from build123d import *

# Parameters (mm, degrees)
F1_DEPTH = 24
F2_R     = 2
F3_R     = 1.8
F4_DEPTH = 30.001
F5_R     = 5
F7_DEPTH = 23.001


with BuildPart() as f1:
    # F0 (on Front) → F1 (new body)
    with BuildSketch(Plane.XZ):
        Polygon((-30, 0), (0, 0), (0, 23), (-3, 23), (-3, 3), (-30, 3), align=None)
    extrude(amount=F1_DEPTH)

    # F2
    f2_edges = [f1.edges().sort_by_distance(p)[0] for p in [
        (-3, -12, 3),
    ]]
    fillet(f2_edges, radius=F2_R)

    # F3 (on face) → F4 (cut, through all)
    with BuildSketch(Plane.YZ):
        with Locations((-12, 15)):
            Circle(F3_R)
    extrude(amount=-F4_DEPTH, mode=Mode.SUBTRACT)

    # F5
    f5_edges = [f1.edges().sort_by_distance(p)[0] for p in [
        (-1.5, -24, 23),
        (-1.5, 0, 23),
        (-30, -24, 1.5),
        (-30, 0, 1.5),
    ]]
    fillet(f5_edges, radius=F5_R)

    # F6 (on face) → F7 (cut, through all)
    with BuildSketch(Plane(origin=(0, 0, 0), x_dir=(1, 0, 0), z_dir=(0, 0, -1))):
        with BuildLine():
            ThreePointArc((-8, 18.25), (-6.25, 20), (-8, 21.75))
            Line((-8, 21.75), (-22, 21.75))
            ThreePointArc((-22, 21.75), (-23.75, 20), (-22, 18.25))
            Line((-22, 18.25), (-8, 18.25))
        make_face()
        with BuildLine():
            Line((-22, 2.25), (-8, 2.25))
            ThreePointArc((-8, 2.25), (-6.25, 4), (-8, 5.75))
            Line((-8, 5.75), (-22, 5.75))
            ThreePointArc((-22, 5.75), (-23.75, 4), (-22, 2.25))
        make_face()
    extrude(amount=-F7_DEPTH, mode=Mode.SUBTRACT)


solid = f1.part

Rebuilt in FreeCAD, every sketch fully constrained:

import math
import FreeCAD as App
import Part
import Sketcher

V = App.Vector
Q = App.Units.Quantity


def edges_at(feature, points):
    """Names of the edges that pass closest to the given points."""
    edges = feature.Shape.Edges
    near = lambda p: min(range(len(edges)), key=lambda i: edges[i].distToShape(Part.Vertex(*p))[0])
    return sorted({f"Edge{near(p) + 1}" for p in points})


def add_polygon(sketch, points):
    """Adds a closed chain of lines whose ends are joined by coincident constraints."""
    first, n = sketch.GeometryCount, len(points)
    for a, b in zip(points, points[1:] + points[:1]):
        sketch.addGeometry(Part.LineSegment(App.Vector(*a, 0), App.Vector(*b, 0)), False)
    for i in range(n):
        sketch.addConstraint(Sketcher.Constraint("Coincident", first + i, 2, first + (i + 1) % n, 1))

doc = App.newDocument("Part")
body = doc.addObject("PartDesign::Body", "Body")

# Sketch on XZ plane
sketch1 = body.newObject("Sketcher::SketchObject", "Sketch")
sketch1.AttachmentSupport = (doc.getObject("XZ_Plane"), [""])
sketch1.MapMode = "FlatFace"
add_polygon(sketch1, [(-30, 0), (0, 0), (0, 23), (-3, 23), (-3, 3), (-30, 3)])  # lines 0-5
sketch1.addConstraint([
    Sketcher.Constraint("Horizontal", 0),
    Sketcher.Constraint("Vertical", 1),
    Sketcher.Constraint("Horizontal", 2),
    Sketcher.Constraint("Vertical", 3),
    Sketcher.Constraint("Horizontal", 4),
    Sketcher.Constraint("Vertical", 5),
    Sketcher.Constraint("Coincident", 0, 2, -1, 1),
    Sketcher.Constraint("Equal", 2, 5),
    Sketcher.Constraint("DistanceX", 0, 1, 0, 2, Q("30 mm")),
    Sketcher.Constraint("DistanceX", 2, 2, 2, 1, Q("3 mm")),
    Sketcher.Constraint("DistanceY", 1, 1, 1, 2, Q("23 mm")),
])
pad1 = body.newObject("PartDesign::Pad", "Pad")
pad1.Profile = sketch1
pad1.Length = 24
doc.recompute()

fillet = body.newObject("PartDesign::Fillet", "Fillet")
fillet.Base = (pad1, edges_at(pad1, [(-3, -12, 3)]))
fillet.Radius = 2

# Sketch on YZ plane
sketch2 = body.newObject("Sketcher::SketchObject", "Sketch001")
sketch2.AttachmentSupport = (doc.getObject("YZ_Plane"), [""])
sketch2.MapMode = "FlatFace"
sketch2.addGeometry(Part.Circle(V(-12, 15, 0), V(0, 0, 1), 1.8), False)
sketch2.addConstraint([
    Sketcher.Constraint("Diameter", 0, Q("3.6 mm")),
    Sketcher.Constraint("DistanceX", 0, 3, -1, 1, Q("12 mm")),
    Sketcher.Constraint("DistanceY", -1, 1, 0, 3, Q("15 mm")),
])
pocket1 = body.newObject("PartDesign::Pocket", "Pocket")
pocket1.Profile = sketch2
pocket1.Type = "ThroughAll"
doc.recompute()

fillet2 = body.newObject("PartDesign::Fillet", "Fillet001")
fillet2.Base = (pocket1, edges_at(pocket1, [
    (-1.5, -24, 23),
    (-1.5, 0, 23),
    (-30, -24, 1.5),
    (-30, 0, 1.5),
]))
fillet2.Radius = 5

# Sketch on XY plane
sketch3 = body.newObject("Sketcher::SketchObject", "Sketch002")
sketch3.AttachmentSupport = (doc.getObject("XY_Plane"), [""])
sketch3.MapMode = "FlatFace"
sketch3.addGeometry([
    Part.ArcOfCircle(Part.Circle(V(-8, -20, 0), V(0, 0, 1), 1.75), math.radians(-90), math.radians(90)),  # 0
    Part.LineSegment(V(-8, -21.75, 0), V(-22, -21.75, 0)),  # 1
    Part.ArcOfCircle(Part.Circle(V(-22, -20, 0), V(0, 0, 1), 1.75), math.radians(90), math.radians(270)),  # 2
    Part.LineSegment(V(-22, -18.25, 0), V(-8, -18.25, 0)),  # 3
    Part.LineSegment(V(-22, -2.25, 0), V(-8, -2.25, 0)),  # 4
    Part.ArcOfCircle(Part.Circle(V(-8, -4, 0), V(0, 0, 1), 1.75), math.radians(-90), math.radians(90)),  # 5
    Part.LineSegment(V(-8, -5.75, 0), V(-22, -5.75, 0)),  # 6
    Part.ArcOfCircle(Part.Circle(V(-22, -4, 0), V(0, 0, 1), 1.75), math.radians(90), math.radians(270)),  # 7
], False)
sketch3.addConstraint([
    Sketcher.Constraint("Tangent", 0, 1, 1, 1),
    Sketcher.Constraint("Tangent", 1, 2, 2, 2),
    Sketcher.Constraint("Tangent", 2, 1, 3, 1),
    Sketcher.Constraint("Tangent", 3, 2, 0, 2),
    Sketcher.Constraint("Tangent", 4, 2, 5, 2),
    Sketcher.Constraint("Tangent", 5, 1, 6, 1),
    Sketcher.Constraint("Tangent", 6, 2, 7, 2),
    Sketcher.Constraint("Tangent", 7, 1, 4, 1),
    Sketcher.Constraint("Horizontal", 1),
    Sketcher.Constraint("Horizontal", 3),
    Sketcher.Constraint("Horizontal", 4),
    Sketcher.Constraint("Horizontal", 6),
    Sketcher.Constraint("Equal", 2, 5),
    Sketcher.Constraint("Vertical", 0, 3, 5, 3),
    Sketcher.Constraint("Vertical", 2, 3, 7, 3),
    Sketcher.Constraint("DistanceX", 1, 2, 1, 1, Q("14 mm")),
    Sketcher.Constraint("Radius", 0, Q("1.75 mm")),
    Sketcher.Constraint("DistanceX", 0, 3, -1, 1, Q("8 mm")),
    Sketcher.Constraint("DistanceY", 0, 3, -1, 1, Q("20 mm")),
    Sketcher.Constraint("DistanceY", 5, 3, -1, 1, Q("4 mm")),
])
pocket2 = body.newObject("PartDesign::Pocket", "Pocket001")
pocket2.Profile = sketch3
pocket2.Type = "ThroughAll"
pocket2.Reversed = True

doc.recompute()
